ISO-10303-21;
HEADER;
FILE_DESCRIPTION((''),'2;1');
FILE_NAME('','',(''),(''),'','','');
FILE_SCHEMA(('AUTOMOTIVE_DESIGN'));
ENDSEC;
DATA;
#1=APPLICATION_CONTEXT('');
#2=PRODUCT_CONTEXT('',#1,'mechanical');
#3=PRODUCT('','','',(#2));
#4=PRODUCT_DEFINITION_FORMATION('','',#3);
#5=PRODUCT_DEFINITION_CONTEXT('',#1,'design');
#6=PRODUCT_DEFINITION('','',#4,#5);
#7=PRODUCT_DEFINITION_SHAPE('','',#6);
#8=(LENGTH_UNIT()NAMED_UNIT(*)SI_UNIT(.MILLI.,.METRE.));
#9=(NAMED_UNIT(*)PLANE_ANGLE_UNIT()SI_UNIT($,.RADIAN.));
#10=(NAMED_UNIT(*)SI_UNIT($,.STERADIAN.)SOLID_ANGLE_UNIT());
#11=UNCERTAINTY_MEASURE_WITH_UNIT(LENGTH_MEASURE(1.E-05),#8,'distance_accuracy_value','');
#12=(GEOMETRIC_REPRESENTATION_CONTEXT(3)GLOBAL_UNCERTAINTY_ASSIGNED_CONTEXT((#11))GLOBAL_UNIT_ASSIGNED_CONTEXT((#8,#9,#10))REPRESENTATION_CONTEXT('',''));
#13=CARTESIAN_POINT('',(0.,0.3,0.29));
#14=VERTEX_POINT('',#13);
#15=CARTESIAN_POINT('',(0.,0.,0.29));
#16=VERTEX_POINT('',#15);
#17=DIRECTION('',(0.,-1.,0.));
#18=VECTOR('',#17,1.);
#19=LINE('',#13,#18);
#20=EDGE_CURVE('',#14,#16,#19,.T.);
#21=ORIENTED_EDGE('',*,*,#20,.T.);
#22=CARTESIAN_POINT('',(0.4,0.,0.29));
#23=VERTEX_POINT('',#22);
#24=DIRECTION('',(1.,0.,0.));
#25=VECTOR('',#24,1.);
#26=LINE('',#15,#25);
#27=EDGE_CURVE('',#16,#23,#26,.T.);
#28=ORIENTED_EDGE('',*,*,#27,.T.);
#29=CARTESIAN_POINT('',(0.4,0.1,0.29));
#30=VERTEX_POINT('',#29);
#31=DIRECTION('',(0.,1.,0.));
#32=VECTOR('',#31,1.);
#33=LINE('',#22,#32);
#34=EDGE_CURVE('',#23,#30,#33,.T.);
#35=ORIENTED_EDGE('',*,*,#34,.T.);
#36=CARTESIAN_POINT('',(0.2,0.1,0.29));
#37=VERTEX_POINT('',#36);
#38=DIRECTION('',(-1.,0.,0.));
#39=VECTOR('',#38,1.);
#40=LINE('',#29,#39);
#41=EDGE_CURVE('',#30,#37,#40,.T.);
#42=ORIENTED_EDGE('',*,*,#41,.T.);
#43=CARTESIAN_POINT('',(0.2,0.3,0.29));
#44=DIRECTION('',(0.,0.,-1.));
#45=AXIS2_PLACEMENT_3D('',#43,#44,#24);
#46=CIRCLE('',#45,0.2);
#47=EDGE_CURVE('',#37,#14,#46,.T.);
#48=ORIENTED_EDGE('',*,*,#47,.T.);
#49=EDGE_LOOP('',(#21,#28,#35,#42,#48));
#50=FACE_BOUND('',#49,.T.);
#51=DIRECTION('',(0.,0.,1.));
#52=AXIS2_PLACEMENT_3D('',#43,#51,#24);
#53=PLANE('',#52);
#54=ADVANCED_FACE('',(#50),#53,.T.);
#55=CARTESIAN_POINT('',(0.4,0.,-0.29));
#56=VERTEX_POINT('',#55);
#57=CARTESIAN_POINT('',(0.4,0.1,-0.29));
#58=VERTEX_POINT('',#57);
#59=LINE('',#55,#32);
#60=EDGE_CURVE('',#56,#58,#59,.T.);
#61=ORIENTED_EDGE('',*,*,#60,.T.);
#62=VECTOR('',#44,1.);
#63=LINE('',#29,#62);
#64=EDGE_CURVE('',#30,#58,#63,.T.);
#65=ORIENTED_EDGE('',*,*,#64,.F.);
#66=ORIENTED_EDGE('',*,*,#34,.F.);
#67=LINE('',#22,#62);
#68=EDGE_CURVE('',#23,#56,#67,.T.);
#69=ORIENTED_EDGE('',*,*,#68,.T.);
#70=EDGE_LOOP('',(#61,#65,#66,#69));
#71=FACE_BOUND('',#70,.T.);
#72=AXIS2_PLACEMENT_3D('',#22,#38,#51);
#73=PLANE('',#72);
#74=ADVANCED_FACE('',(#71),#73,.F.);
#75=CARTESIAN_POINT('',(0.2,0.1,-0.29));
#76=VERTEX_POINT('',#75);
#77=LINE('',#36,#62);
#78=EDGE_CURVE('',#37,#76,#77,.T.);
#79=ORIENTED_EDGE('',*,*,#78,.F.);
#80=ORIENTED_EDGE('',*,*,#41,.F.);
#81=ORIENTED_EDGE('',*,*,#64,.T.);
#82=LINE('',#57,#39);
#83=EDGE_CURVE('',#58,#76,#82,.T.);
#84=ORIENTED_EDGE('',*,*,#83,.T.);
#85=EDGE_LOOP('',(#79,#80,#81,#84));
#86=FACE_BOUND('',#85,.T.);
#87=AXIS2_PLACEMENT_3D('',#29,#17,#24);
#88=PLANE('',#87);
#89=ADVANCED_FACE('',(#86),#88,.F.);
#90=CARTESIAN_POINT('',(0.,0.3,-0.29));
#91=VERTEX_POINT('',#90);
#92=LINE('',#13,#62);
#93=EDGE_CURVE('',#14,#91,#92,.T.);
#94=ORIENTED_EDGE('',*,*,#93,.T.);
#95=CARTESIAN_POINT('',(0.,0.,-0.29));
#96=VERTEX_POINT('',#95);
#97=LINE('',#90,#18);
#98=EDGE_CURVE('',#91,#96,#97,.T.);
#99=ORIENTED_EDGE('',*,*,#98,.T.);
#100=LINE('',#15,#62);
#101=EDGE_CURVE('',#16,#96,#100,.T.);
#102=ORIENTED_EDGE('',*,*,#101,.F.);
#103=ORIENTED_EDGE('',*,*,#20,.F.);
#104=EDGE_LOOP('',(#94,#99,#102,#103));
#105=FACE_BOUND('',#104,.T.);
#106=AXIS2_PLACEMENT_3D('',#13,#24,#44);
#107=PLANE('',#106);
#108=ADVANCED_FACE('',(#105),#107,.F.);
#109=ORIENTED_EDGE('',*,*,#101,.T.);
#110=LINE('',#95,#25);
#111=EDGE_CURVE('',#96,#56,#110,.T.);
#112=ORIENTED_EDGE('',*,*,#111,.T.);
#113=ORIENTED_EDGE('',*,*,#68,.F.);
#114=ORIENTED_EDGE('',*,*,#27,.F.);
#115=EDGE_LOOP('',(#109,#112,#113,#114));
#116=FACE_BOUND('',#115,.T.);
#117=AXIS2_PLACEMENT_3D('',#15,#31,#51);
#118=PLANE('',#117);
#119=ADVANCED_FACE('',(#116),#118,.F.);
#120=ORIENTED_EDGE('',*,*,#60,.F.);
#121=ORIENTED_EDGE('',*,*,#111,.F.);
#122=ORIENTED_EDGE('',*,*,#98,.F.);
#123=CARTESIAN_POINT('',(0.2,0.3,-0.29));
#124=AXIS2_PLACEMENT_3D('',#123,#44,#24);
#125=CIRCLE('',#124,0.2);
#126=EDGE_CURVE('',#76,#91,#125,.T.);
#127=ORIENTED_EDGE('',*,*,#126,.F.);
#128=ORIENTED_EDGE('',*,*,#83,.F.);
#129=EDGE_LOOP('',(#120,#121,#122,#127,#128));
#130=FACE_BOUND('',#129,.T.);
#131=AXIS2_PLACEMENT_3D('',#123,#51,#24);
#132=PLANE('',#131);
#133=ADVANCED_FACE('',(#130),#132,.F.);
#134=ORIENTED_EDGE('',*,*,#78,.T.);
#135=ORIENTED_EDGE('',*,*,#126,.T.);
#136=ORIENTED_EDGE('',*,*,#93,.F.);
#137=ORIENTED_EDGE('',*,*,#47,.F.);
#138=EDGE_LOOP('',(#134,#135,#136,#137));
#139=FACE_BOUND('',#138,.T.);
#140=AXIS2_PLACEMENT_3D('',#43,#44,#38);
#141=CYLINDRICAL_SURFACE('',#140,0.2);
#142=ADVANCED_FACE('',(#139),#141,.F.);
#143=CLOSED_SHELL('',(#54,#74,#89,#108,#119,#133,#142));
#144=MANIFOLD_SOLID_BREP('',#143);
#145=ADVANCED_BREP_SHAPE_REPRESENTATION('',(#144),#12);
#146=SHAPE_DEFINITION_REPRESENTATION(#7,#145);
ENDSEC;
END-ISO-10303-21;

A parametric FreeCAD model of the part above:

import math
import FreeCAD as App
import Part
import Sketcher
from FreeCAD import Vector

doc = App.newDocument("Part")
body = doc.addObject("PartDesign::Body", "Body")

# Sketch on XY plane
sketch1 = body.newObject("Sketcher::SketchObject", "Sketch")
sketch1.AttachmentSupport = (doc.getObject("XY_Plane"), [""])
sketch1.MapMode = "FlatFace"
sketch1.addGeometry([
    Part.LineSegment(Vector(0, 0, 0), Vector(0.4, 0, 0)),  # 0
    Part.LineSegment(Vector(0.4, 0, 0), Vector(0.4, 0.1, 0)),  # 1
    Part.LineSegment(Vector(0.4, 0.1, 0), Vector(0.2, 0.1, 0)),  # 2
    Part.ArcOfCircle(Part.Circle(Vector(0.2, 0.3, 0), Vector(0, 0, 1), 0.2), math.radians(-180), math.radians(-90)),  # 3
    Part.LineSegment(Vector(0, 0.3, 0), Vector(0, 0, 0)),  # 4
], False)
sketch1.addConstraint([
    Sketcher.Constraint("Coincident", 0, 2, 1, 1),
    Sketcher.Constraint("Coincident", 1, 2, 2, 1),
    Sketcher.Constraint("Tangent", 2, 2, 3, 2),
    Sketcher.Constraint("Tangent", 3, 1, 4, 1),
    Sketcher.Constraint("Coincident", 4, 2, 0, 1),
    Sketcher.Constraint("Horizontal", 0),
    Sketcher.Constraint("Vertical", 1),
    Sketcher.Constraint("Horizontal", 2),
    Sketcher.Constraint("Vertical", 4),
    Sketcher.Constraint("Coincident", 4, 2, -1, 1),
    Sketcher.Constraint("Radius", 3, 0.2),
    Sketcher.Constraint("DistanceX", 0, 1, 0, 2, 0.4),
    Sketcher.Constraint("DistanceY", 1, 1, 1, 2, 0.1),
])
pad1 = body.newObject("PartDesign::Pad", "Pad")
pad1.Profile = sketch1
pad1.Length = 0.58
pad1.Midplane = True

doc.recompute()
